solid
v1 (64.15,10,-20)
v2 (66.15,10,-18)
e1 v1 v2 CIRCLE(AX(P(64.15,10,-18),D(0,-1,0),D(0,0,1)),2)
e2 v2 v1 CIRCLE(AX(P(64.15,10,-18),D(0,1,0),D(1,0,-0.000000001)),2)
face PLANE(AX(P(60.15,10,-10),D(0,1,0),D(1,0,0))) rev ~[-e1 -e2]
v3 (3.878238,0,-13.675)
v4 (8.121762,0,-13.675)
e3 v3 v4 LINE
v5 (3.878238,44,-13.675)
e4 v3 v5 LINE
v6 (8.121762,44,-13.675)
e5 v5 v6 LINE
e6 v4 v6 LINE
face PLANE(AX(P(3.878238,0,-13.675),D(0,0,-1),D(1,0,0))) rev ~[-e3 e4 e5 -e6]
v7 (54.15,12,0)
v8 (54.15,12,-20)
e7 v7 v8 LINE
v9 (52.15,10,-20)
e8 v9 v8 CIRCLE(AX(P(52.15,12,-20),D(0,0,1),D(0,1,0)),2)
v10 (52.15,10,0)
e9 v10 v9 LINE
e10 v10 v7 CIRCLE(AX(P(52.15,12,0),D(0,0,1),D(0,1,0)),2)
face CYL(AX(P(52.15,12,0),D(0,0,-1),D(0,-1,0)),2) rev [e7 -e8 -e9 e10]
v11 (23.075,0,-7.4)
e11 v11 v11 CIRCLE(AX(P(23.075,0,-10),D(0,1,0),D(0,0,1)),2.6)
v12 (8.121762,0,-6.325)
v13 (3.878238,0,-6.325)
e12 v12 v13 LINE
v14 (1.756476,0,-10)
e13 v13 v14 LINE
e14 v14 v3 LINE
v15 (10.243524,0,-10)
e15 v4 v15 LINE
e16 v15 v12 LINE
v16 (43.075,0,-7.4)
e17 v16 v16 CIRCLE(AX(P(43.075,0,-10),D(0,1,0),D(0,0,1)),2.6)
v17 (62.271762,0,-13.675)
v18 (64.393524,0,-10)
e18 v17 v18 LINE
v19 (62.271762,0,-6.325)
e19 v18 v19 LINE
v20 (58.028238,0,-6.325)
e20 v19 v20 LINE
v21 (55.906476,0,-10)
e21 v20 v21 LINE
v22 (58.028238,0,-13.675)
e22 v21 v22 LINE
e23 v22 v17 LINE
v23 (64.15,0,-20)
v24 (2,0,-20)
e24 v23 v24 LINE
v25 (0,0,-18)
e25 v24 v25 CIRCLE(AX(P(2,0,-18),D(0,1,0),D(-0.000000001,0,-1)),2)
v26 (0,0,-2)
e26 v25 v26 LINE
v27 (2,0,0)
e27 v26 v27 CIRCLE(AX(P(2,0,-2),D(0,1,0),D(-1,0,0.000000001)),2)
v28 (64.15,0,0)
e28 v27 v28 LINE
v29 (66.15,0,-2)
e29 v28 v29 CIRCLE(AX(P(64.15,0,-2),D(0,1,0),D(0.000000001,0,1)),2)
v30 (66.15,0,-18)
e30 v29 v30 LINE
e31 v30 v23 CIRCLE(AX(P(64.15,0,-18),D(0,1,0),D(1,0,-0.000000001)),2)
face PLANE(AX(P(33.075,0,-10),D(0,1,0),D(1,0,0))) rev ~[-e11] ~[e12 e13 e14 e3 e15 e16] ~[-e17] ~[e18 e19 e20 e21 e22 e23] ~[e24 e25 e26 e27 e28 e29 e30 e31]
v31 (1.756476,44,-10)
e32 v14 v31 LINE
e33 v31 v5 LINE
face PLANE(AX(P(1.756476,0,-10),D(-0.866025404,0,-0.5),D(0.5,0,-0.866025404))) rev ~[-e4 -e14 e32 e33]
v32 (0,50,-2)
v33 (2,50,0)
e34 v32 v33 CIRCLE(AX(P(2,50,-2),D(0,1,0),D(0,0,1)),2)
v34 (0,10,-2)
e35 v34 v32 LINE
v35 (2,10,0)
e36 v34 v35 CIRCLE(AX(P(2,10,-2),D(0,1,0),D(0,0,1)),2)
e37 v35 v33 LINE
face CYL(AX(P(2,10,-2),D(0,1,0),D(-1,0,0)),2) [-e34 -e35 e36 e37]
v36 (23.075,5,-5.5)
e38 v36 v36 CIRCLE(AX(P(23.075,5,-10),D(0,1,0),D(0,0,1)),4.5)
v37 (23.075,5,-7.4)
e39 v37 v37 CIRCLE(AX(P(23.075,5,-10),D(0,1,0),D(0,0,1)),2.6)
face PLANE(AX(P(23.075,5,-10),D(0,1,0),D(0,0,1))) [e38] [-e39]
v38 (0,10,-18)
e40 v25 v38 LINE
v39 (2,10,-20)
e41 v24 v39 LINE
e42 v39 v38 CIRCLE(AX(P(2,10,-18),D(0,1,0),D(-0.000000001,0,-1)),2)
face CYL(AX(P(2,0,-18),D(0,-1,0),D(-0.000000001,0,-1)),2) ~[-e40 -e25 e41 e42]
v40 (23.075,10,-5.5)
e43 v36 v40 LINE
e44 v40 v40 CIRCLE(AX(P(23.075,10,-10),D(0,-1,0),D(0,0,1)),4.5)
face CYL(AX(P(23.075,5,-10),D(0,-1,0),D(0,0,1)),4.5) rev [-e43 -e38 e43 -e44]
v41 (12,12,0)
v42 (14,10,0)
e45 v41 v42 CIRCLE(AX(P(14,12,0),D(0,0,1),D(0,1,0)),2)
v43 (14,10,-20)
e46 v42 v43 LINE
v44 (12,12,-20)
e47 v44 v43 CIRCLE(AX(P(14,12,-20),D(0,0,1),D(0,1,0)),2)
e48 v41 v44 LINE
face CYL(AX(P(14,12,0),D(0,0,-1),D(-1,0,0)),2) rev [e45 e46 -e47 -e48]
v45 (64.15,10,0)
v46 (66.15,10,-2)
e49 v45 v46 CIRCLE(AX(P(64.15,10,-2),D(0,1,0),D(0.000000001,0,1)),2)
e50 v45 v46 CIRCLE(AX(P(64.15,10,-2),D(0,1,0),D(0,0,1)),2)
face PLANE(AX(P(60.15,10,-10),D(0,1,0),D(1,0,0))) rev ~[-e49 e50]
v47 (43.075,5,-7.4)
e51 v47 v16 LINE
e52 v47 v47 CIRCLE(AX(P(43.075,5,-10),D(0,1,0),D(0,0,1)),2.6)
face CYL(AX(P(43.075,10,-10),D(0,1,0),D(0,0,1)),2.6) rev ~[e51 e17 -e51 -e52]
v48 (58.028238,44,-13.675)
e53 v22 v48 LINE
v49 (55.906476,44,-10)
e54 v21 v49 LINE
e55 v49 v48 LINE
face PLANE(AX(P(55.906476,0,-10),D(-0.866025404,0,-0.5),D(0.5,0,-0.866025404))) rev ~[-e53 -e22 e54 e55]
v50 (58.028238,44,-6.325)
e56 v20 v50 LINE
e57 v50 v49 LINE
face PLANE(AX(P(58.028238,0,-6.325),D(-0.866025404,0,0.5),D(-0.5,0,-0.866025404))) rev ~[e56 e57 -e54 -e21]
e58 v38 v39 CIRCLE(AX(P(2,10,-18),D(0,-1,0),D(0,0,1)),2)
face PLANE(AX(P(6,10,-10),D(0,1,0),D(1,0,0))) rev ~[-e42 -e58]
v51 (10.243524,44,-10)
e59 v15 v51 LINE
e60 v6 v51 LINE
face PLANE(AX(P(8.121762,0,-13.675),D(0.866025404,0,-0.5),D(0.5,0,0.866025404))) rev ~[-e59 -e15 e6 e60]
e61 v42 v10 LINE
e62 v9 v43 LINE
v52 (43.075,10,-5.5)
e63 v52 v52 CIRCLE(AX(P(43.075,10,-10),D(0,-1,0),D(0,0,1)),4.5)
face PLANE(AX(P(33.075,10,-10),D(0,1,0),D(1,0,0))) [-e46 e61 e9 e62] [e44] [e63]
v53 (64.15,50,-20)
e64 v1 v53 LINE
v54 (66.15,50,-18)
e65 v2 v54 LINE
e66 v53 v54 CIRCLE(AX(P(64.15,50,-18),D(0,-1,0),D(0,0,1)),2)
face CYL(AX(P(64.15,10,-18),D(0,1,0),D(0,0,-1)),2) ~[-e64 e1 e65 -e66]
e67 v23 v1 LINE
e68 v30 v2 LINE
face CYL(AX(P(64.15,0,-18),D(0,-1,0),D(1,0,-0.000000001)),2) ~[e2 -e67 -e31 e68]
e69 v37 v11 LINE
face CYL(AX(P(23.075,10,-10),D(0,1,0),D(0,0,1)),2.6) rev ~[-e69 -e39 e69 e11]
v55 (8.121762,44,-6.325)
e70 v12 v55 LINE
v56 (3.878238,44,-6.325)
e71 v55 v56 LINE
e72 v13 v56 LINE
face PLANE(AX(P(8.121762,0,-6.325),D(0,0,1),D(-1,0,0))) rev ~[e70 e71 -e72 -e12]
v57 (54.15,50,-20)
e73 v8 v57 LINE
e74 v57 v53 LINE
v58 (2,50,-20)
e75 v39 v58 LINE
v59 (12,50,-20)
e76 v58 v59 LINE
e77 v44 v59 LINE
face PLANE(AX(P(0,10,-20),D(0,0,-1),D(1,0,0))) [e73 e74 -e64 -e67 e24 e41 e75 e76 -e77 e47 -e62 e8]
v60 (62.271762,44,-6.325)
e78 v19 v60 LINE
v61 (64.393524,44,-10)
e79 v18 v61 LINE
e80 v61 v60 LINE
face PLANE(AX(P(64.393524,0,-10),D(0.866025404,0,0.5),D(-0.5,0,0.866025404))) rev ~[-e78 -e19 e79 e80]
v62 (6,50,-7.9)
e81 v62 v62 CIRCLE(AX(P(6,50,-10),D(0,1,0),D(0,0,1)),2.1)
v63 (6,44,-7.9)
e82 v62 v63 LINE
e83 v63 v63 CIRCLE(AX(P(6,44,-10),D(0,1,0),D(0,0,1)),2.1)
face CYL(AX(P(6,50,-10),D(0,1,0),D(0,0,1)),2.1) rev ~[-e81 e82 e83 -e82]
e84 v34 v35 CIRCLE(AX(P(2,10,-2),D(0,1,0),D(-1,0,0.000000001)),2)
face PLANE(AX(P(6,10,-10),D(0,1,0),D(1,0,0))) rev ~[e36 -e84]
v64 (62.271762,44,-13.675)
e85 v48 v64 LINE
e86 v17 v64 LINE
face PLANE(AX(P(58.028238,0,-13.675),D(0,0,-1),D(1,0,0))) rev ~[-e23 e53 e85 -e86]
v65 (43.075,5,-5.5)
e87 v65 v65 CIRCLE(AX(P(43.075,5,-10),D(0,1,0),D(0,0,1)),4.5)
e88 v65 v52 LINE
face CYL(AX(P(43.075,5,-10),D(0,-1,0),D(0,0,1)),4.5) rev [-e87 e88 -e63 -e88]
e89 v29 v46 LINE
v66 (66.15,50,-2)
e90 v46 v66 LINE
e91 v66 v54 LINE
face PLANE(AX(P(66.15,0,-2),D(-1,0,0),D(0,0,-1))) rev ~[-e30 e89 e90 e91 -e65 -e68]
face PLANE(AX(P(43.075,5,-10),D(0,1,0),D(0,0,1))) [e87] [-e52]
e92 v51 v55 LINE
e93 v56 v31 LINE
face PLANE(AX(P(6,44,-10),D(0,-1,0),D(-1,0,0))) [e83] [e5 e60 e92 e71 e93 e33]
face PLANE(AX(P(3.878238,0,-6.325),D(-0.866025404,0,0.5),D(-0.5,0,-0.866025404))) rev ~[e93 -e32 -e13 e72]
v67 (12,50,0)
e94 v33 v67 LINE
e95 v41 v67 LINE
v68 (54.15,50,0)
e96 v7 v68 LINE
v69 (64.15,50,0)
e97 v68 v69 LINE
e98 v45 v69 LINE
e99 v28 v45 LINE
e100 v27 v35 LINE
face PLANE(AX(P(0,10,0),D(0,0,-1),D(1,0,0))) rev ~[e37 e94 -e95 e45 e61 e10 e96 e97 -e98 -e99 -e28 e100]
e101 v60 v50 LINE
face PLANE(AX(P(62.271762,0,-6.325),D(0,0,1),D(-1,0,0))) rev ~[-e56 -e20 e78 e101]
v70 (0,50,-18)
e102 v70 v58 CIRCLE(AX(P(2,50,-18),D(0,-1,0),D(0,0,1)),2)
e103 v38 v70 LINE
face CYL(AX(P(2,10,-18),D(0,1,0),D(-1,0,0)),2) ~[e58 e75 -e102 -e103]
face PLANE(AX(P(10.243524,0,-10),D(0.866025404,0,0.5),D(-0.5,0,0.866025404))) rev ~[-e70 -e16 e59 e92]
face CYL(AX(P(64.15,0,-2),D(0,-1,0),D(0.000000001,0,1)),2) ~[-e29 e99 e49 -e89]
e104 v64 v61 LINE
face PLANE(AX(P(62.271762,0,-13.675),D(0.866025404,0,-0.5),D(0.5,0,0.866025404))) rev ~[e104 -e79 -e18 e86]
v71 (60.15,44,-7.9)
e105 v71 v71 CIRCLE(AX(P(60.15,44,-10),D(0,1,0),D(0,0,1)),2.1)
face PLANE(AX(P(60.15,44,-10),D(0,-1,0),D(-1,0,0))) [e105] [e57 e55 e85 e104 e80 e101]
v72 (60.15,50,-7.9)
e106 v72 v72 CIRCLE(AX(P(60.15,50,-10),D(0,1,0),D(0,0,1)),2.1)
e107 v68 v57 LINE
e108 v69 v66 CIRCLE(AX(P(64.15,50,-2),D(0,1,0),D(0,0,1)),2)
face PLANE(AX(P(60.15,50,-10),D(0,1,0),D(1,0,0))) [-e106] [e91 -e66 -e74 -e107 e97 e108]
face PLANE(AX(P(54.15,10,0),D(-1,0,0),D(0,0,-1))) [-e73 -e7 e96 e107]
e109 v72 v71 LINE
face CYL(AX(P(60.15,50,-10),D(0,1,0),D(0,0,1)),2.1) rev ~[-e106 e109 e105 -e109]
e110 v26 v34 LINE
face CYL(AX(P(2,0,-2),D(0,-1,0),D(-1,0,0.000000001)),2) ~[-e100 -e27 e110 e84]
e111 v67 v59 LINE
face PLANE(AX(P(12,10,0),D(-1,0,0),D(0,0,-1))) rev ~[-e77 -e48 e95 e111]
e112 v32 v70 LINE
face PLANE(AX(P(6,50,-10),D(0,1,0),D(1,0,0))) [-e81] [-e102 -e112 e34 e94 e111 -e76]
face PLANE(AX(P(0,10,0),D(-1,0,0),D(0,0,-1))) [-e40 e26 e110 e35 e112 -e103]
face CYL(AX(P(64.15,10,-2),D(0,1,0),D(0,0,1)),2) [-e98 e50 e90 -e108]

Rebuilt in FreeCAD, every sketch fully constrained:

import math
import FreeCAD as App
import Part
import Sketcher
from FreeCAD import Vector
Q = App.Units.Quantity


def edges_at(feature, points):
    """Names of the edges that pass closest to the given points."""
    edges = feature.Shape.Edges
    near = lambda p: min(range(len(edges)), key=lambda i: edges[i].distToShape(Part.Vertex(*p))[0])
    return sorted({f"Edge{near(p) + 1}" for p in points})


def add_polygon(sketch, points):
    """Adds a closed chain of lines whose ends are joined by coincident constraints."""
    first, n = sketch.GeometryCount, len(points)
    for a, b in zip(points, points[1:] + points[:1]):
        sketch.addGeometry(Part.LineSegment(App.Vector(*a, 0), App.Vector(*b, 0)), False)
    for i in range(n):
        sketch.addConstraint(Sketcher.Constraint("Coincident", first + i, 2, first + (i + 1) % n, 1))

doc = App.newDocument("Part")
body = doc.addObject("PartDesign::Body", "Body")

# Sketch on XZ plane
sketch1 = doc.addObject("Sketcher::SketchObject", "Sketch")
body.addObject(sketch1)
sketch1.AttachmentSupport = (doc.XZ_Plane, [""])
sketch1.MapMode = "FlatFace"
sketch1.addGeometry([
    Part.LineSegment(Vector(2, 0, 0), Vector(64.15, 0, 0)),  # 0
    Part.ArcOfCircle(Part.Circle(Vector(64.15, -2, 0), Vector(0, 0, 1), 2), math.radians(0), math.radians(90)),  # 1
    Part.LineSegment(Vector(66.15, -2, 0), Vector(66.15, -18, 0)),  # 2
    Part.ArcOfCircle(Part.Circle(Vector(64.15, -18, 0), Vector(0, 0, 1), 2), math.radians(-90), math.radians(0)),  # 3
    Part.LineSegment(Vector(64.15, -20, 0), Vector(2, -20, 0)),  # 4
    Part.ArcOfCircle(Part.Circle(Vector(2, -18, 0), Vector(0, 0, 1), 2), math.radians(-180), math.radians(-90)),  # 5
    Part.LineSegment(Vector(0, -18, 0), Vector(0, -2, 0)),  # 6
    Part.ArcOfCircle(Part.Circle(Vector(2, -2, 0), Vector(0, 0, 1), 2), math.radians(90), math.radians(180)),  # 7
], False)
sketch1.addConstraint([
    Sketcher.Constraint("Tangent", 0, 2, 1, 2),
    Sketcher.Constraint("Tangent", 1, 1, 2, 1),
    Sketcher.Constraint("Tangent", 2, 2, 3, 2),
    Sketcher.Constraint("Tangent", 3, 1, 4, 1),
    Sketcher.Constraint("Tangent", 4, 2, 5, 2),
    Sketcher.Constraint("Tangent", 5, 1, 6, 1),
    Sketcher.Constraint("Tangent", 6, 2, 7, 2),
    Sketcher.Constraint("Tangent", 7, 1, 0, 1),
    Sketcher.Constraint("Horizontal", 0),
    Sketcher.Constraint("Vertical", 2),
    Sketcher.Constraint("Horizontal", 4),
    Sketcher.Constraint("Vertical", 6),
    Sketcher.Constraint("Equal", 1, 3),
    Sketcher.Constraint("Equal", 3, 5),
    Sketcher.Constraint("Equal", 5, 7),
    Sketcher.Constraint("PointOnObject", 0, 2, -1),
    Sketcher.Constraint("PointOnObject", 5, 1, -2),
    Sketcher.Constraint("Radius", 1, 2.0),
    Sketcher.Constraint("DistanceY", 2, 2, 2, 1, 16.0),
    Sketcher.Constraint("DistanceX", 0, 1, 0, 2, 62.15),
])
pad1 = doc.addObject("PartDesign::Pad", "Pad")
body.addObject(pad1)
pad1.Profile = sketch1
pad1.Length = 10
pad1.Reversed = True

# Sketch on XZ plane
sketch2 = doc.addObject("Sketcher::SketchObject", "Sketch001")
body.addObject(sketch2)
sketch2.AttachmentSupport = (doc.XZ_Plane, [""])
sketch2.MapMode = "FlatFace"
sketch2.AttachmentOffset = App.Placement(Vector(0, 0, -10), App.Rotation())
add_polygon(sketch2, [(0, -20), (0, 0), (12, 0), (12, -20)])  # lines 0-3
add_polygon(sketch2, [(54.15, -20), (54.15, 0), (66.15, 0), (66.15, -20)])  # lines 4-7
sketch2.addConstraint([
    Sketcher.Constraint("Vertical", 0),
    Sketcher.Constraint("Horizontal", 1),
    Sketcher.Constraint("Vertical", 2),
    Sketcher.Constraint("Horizontal", 3),
    Sketcher.Constraint("Vertical", 4),
    Sketcher.Constraint("Horizontal", 5),
    Sketcher.Constraint("Vertical", 6),
    Sketcher.Constraint("Horizontal", 7),
    Sketcher.Constraint("Coincident", 0, 2, -1, 1),
    Sketcher.Constraint("PointOnObject", 4, 2, -1),
    Sketcher.Constraint("Horizontal", 3, 2, 6, 2),
    Sketcher.Constraint("Equal", 3, 5),
    Sketcher.Constraint("DistanceX", 1, 1, 1, 2, 12.0),
    Sketcher.Constraint("DistanceY", 0, 1, 0, 2, 20.0),
    Sketcher.Constraint("DistanceX", -1, 1, 4, 2, 54.15),
])
pad2 = doc.addObject("PartDesign::Pad", "Pad001")
body.addObject(pad2)
pad2.Profile = sketch2
pad2.Length = 40
pad2.Reversed = True

# Sketch on XZ plane
sketch3 = doc.addObject("Sketcher::SketchObject", "Sketch002")
body.addObject(sketch3)
sketch3.AttachmentSupport = (doc.XZ_Plane, [""])
sketch3.MapMode = "FlatFace"
sketch3.AttachmentOffset = App.Placement(Vector(0, 0, -50), App.Rotation())
sketch3.addGeometry([
    Part.Circle(Vector(6, -10, 0), Vector(0, 0, 1), 2.1),
    Part.Circle(Vector(60.15, -10, 0), Vector(0, 0, 1), 2.1),
], False)
sketch3.addConstraint([
    Sketcher.Constraint("Equal", 0, 1),
    Sketcher.Constraint("Horizontal", 0, 3, 1, 3),
    Sketcher.Constraint("Diameter", 0, 4.2),
    Sketcher.Constraint("DistanceX", -1, 1, 0, 3, 6.0),
    Sketcher.Constraint("DistanceY", 0, 3, -1, 1, 10.0),
    Sketcher.Constraint("DistanceX", -1, 1, 1, 3, 60.15),
])
pocket1 = doc.addObject("PartDesign::Pocket", "Pocket")
body.addObject(pocket1)
pocket1.Profile = sketch3
pocket1.Type = "ThroughAll"
pocket1.Reversed = True

# Sketch on XZ plane
sketch4 = doc.addObject("Sketcher::SketchObject", "Sketch003")
body.addObject(sketch4)
sketch4.AttachmentSupport = (doc.XZ_Plane, [""])
sketch4.MapMode = "FlatFace"
add_polygon(sketch4, [(8.121762, -13.675), (10.243524, -10), (8.121762, -6.325), (3.878238, -6.325), (1.756476, -10), (3.878238, -13.675)])  # lines 0-5
add_polygon(sketch4, [(62.271762, -13.675), (64.393524, -10), (62.271762, -6.325), (58.028238, -6.325), (55.906476, -10), (58.028238, -13.675)])  # lines 6-11
sketch4.addConstraint([
    Sketcher.Constraint("Horizontal", 2),
    Sketcher.Constraint("Horizontal", 5),
    Sketcher.Constraint("Horizontal", 8),
    Sketcher.Constraint("Horizontal", 11),
    Sketcher.Constraint("Parallel", 0, 3),
    Sketcher.Constraint("Parallel", 1, 4),
    Sketcher.Constraint("Parallel", 3, 6),
    Sketcher.Constraint("Parallel", 4, 7),
    Sketcher.Constraint("Parallel", 6, 9),
    Sketcher.Constraint("Parallel", 7, 10),
    Sketcher.Constraint("Horizontal", 0, 2, 3, 2),
    Sketcher.Constraint("Horizontal", 3, 2, 6, 2),
    Sketcher.Constraint("Horizontal", 2, 2, 7, 2),
    Sketcher.Constraint("Horizontal", 6, 2, 9, 2),
    Sketcher.Constraint("Horizontal", 5, 2, 10, 2),
    Sketcher.Constraint("Vertical", 2, 2, 4, 2),
    Sketcher.Constraint("Vertical", 1, 2, 5, 2),
    Sketcher.Constraint("Equal", 5, 8),
    Sketcher.Constraint("Angle", 0, Q("60 deg")),
    Sketcher.Constraint("DistanceY", 0, 2, -1, 1, 10.0),
    Sketcher.Constraint("DistanceY", 4, 2, 2, 2, 7.35),
    Sketcher.Constraint("DistanceX", 0, 2, 6, 2, 54.15),
    Sketcher.Constraint("DistanceX", 2, 2, 2, 1, 4.243524),
    Sketcher.Constraint("DistanceX", -1, 1, 0, 2, 10.243524),
])
pocket2 = doc.addObject("PartDesign::Pocket", "Pocket001")
body.addObject(pocket2)
pocket2.Profile = sketch4
pocket2.Length = 44
doc.recompute()

fillet = doc.addObject("PartDesign::Fillet", "Fillet")
body.addObject(fillet)
fillet.Base = (pocket2, edges_at(pocket2, [
    (0, 30, -20),
    (0, 30, 0),
    (66.15, 30, 0),
    (66.15, 30, -20),
]))
fillet.Radius = 2
doc.recompute()

fillet2 = doc.addObject("PartDesign::Fillet", "Fillet001")
body.addObject(fillet2)
fillet2.Base = (fillet, edges_at(fillet, [(12, 10, -10), (54.15, 10, -10)]))
fillet2.Radius = 2

# Sketch on XZ plane
sketch5 = doc.addObject("Sketcher::SketchObject", "Sketch004")
body.addObject(sketch5)
sketch5.AttachmentSupport = (doc.XZ_Plane, [""])
sketch5.MapMode = "FlatFace"
sketch5.AttachmentOffset = App.Placement(Vector(0, 0, -10), App.Rotation())
sketch5.addGeometry([
    Part.Circle(Vector(23.075, -10, 0), Vector(0, 0, 1), 2.6),
    Part.Circle(Vector(43.075, -10, 0), Vector(0, 0, 1), 2.6),
], False)
sketch5.addConstraint([
    Sketcher.Constraint("Equal", 0, 1),
    Sketcher.Constraint("Horizontal", 0, 3, 1, 3),
    Sketcher.Constraint("Diameter", 0, 5.2),
    Sketcher.Constraint("DistanceY", 0, 3, -1, 1, 10.0),
    Sketcher.Constraint("DistanceX", 0, 3, 1, 3, 20.0),
    Sketcher.Constraint("DistanceX", -1, 1, 0, 3, 23.075),
])
pocket3 = doc.addObject("PartDesign::Pocket", "Pocket002")
body.addObject(pocket3)
pocket3.Profile = sketch5
pocket3.Length = 10
pocket3.Reversed = True

# Sketch on XZ plane
sketch6 = doc.addObject("Sketcher::SketchObject", "Sketch005")
body.addObject(sketch6)
sketch6.AttachmentSupport = (doc.XZ_Plane, [""])
sketch6.MapMode = "FlatFace"
sketch6.AttachmentOffset = App.Placement(Vector(0, 0, -10), App.Rotation())
sketch6.addGeometry([
    Part.Circle(Vector(43.075, -10, 0), Vector(0, 0, 1), 4.5),
    Part.Circle(Vector(43.075, -10, 0), Vector(0, 0, 1), 2.6),
    Part.Circle(Vector(23.075, -10, 0), Vector(0, 0, 1), 4.5),
    Part.Circle(Vector(23.075, -10, 0), Vector(0, 0, 1), 2.6),
], False)
sketch6.addConstraint([
    Sketcher.Constraint("Coincident", 1, 3, 0, 3),
    Sketcher.Constraint("Coincident", 3, 3, 2, 3),
    Sketcher.Constraint("Equal", 0, 2),
    Sketcher.Constraint("Equal", 1, 3),
    Sketcher.Constraint("Horizontal", 1, 3, 2, 3),
    Sketcher.Constraint("Diameter", 0, 9.0),
    Sketcher.Constraint("Diameter", 1, 5.2),
    Sketcher.Constraint("DistanceY", 0, 3, -1, 1, 10.0),
    Sketcher.Constraint("DistanceX", 2, 3, 0, 3, 20.0),
    Sketcher.Constraint("DistanceX", -1, 1, 0, 3, 43.075),
])
pocket4 = doc.addObject("PartDesign::Pocket", "Pocket003")
body.addObject(pocket4)
pocket4.Profile = sketch6
pocket4.Type = "TwoLengths"
pocket4.Length = 5
pocket4.Length2 = 5

doc.recompute()
